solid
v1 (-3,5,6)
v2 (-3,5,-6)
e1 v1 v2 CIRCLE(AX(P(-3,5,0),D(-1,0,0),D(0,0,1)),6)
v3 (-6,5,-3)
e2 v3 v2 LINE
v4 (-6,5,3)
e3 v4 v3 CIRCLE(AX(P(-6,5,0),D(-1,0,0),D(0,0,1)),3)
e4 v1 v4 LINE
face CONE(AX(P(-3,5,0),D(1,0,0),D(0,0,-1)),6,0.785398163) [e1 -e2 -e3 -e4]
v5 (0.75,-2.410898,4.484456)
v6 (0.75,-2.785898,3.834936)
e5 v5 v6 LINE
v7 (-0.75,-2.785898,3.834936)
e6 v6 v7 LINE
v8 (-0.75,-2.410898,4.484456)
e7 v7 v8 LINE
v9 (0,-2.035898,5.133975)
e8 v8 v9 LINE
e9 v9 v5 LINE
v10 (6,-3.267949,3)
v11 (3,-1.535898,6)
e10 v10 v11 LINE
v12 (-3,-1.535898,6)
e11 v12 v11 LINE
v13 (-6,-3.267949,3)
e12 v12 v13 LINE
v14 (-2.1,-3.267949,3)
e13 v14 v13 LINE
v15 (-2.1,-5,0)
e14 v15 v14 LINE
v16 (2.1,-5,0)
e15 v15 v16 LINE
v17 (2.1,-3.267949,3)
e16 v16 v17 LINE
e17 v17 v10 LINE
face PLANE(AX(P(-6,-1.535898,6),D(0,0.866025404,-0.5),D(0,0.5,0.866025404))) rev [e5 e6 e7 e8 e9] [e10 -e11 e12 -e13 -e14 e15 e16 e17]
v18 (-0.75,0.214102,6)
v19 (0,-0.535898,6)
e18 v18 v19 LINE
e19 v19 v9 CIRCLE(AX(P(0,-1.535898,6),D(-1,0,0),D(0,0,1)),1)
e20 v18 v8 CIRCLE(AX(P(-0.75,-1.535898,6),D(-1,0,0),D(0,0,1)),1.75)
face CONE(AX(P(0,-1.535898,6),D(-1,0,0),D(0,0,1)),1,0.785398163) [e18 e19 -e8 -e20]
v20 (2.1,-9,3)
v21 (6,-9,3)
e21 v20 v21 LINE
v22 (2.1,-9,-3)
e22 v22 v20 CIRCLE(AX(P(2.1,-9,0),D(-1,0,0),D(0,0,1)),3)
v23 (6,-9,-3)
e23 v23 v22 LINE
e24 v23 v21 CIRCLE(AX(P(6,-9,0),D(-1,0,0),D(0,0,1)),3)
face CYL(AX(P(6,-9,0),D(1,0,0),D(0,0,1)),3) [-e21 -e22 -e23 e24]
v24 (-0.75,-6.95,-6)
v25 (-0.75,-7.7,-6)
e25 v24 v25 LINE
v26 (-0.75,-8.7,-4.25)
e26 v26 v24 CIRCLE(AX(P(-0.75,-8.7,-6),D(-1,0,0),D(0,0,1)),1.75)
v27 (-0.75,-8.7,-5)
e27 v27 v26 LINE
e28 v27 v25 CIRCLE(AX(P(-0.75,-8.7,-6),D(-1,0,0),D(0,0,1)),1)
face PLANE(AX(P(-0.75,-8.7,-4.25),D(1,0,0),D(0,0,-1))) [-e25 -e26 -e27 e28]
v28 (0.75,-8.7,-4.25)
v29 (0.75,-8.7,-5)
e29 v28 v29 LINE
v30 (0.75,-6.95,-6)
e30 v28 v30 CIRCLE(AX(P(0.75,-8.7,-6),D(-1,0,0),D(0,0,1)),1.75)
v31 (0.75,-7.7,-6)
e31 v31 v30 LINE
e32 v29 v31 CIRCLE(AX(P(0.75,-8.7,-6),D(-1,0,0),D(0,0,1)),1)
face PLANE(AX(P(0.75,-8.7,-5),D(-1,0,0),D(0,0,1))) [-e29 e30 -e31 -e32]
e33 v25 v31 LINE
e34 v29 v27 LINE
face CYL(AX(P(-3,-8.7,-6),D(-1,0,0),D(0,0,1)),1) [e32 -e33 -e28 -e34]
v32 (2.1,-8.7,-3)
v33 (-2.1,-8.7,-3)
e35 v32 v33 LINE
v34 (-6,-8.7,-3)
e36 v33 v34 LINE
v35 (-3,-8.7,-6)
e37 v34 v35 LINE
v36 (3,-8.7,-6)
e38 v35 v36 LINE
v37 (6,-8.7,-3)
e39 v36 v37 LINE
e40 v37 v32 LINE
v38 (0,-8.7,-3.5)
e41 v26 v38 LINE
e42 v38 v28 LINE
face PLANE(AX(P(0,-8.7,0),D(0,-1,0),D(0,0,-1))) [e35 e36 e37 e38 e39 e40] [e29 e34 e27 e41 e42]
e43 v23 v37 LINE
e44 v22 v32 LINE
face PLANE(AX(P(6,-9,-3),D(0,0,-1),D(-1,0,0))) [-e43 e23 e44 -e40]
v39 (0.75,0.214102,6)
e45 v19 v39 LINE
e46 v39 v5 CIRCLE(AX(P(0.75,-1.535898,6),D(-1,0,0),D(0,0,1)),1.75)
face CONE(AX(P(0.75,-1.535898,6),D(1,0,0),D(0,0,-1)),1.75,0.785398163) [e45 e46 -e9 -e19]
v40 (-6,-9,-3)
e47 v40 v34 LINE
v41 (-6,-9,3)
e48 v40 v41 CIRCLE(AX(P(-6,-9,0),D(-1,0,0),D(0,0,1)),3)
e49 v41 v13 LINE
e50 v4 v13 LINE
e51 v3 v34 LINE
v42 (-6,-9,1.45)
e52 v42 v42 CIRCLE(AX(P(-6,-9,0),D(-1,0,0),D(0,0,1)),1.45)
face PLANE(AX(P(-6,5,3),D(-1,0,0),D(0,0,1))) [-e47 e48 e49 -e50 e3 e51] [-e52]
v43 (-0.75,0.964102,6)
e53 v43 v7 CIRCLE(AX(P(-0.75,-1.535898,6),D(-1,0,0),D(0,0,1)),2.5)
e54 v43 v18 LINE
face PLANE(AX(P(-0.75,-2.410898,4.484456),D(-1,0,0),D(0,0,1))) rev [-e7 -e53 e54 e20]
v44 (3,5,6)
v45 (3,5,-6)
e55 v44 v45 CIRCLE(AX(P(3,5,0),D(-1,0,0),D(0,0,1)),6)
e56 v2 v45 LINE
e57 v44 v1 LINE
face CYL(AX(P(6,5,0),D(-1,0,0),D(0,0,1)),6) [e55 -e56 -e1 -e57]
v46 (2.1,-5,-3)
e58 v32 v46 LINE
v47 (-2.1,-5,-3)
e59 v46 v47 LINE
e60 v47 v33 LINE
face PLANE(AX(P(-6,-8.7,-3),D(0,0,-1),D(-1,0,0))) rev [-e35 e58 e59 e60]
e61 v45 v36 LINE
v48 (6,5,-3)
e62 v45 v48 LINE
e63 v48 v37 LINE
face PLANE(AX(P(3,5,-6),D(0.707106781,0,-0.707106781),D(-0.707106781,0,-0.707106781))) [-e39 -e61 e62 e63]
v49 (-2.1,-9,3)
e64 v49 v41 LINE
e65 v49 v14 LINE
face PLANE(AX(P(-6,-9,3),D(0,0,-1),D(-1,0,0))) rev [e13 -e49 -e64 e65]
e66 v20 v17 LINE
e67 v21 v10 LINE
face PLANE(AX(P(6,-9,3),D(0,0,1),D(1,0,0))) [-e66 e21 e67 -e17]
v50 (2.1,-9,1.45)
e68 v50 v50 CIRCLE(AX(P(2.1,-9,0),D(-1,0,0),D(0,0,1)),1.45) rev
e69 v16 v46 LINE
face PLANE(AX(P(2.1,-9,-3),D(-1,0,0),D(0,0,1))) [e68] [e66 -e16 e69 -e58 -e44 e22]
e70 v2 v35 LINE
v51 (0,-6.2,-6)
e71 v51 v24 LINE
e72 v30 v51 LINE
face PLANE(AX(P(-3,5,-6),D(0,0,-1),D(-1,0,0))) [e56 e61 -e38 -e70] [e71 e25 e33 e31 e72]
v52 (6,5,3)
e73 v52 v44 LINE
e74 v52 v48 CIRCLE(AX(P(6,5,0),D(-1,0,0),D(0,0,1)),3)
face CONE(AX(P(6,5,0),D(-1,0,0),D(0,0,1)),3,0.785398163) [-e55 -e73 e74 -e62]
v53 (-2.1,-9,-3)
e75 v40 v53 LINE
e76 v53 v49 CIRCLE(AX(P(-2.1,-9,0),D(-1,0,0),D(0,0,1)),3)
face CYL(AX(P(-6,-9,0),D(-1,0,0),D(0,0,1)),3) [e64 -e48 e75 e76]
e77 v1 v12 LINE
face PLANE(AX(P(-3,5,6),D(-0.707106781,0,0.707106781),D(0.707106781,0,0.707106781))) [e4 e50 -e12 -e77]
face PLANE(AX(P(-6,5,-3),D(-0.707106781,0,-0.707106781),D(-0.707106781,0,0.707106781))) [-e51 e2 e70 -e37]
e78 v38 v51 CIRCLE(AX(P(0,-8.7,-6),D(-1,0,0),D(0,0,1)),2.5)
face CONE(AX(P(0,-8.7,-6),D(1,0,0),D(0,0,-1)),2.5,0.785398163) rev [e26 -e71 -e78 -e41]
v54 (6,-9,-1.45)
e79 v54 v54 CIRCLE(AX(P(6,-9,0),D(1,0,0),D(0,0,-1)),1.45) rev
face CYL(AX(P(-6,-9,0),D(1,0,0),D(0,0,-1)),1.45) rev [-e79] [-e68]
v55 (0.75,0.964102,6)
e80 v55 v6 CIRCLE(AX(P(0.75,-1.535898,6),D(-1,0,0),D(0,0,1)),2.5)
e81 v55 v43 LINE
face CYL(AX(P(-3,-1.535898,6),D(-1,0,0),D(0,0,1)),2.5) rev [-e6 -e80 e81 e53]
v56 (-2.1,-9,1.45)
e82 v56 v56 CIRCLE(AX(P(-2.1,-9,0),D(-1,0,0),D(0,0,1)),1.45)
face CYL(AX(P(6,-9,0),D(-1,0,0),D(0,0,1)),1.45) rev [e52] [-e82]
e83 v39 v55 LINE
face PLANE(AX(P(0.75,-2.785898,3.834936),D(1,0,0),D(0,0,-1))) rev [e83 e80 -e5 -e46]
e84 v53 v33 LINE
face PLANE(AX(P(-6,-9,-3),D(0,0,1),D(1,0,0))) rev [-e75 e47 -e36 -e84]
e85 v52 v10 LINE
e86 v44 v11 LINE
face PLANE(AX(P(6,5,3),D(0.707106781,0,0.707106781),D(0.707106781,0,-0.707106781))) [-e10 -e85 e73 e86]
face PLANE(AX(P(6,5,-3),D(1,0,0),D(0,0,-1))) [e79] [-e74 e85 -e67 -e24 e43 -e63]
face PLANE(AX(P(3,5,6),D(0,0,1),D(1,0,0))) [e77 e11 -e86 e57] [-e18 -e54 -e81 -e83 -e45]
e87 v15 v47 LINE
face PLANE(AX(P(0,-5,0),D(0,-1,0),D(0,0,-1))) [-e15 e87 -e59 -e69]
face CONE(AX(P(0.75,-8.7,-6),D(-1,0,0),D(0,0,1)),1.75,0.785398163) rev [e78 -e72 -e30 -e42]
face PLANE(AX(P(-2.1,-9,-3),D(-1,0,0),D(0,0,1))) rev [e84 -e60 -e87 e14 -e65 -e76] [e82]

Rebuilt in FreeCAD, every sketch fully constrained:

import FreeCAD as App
import Part
import Sketcher

V = App.Vector
Q = App.Units.Quantity


def add_polygon(sketch, points):
    """Adds a closed chain of lines whose ends are joined by coincident constraints."""
    first, n = sketch.GeometryCount, len(points)
    for a, b in zip(points, points[1:] + points[:1]):
        sketch.addGeometry(Part.LineSegment(App.Vector(*a, 0), App.Vector(*b, 0)), False)
    for i in range(n):
        sketch.addConstraint(Sketcher.Constraint("Coincident", first + i, 2, first + (i + 1) % n, 1))

doc = App.newDocument("Part")
body = doc.addObject("PartDesign::Body", "Body")

# Sketch on XZ plane
sketch1 = body.newObject("Sketcher::SketchObject", "Sketch")
sketch1.AttachmentSupport = (doc.getObject("XZ_Plane"), [""])
sketch1.MapMode = "FlatFace"
add_polygon(sketch1, [(3, -6), (-3, -6), (-6, -3), (-6, 3), (-3, 6), (3, 6), (6, 3), (6, -3)])  # lines 0-7
sketch1.addConstraint([
    Sketcher.Constraint("Horizontal", 0),
    Sketcher.Constraint("Vertical", 2),
    Sketcher.Constraint("Horizontal", 4),
    Sketcher.Constraint("Vertical", 6),
    Sketcher.Constraint("Symmetric", 0, 2, 4, 2, -1, 1),
    Sketcher.Constraint("Symmetric", 1, 2, 5, 2, -1, 1),
    Sketcher.Constraint("Perpendicular", 1, 3),
    Sketcher.Constraint("Perpendicular", 5, 7),
    Sketcher.Constraint("Horizontal", 2, 2, 5, 2),
    Sketcher.Constraint("Horizontal", 1, 2, 6, 2),
    Sketcher.Constraint("Vertical", 0, 2, 3, 2),
    Sketcher.Constraint("Equal", 4, 2),
    Sketcher.Constraint("DistanceX", 0, 2, 0, 1, Q("6 mm")),
    Sketcher.Constraint("DistanceY", 0, 2, -1, 1, Q("6 mm")),
])
pad1 = body.newObject("PartDesign::Pad", "Pad")
pad1.Profile = sketch1
pad1.Length = 10
pad1.Midplane = True

# Sketch on YZ plane
sketch2 = body.newObject("Sketcher::SketchObject", "Sketch001")
sketch2.AttachmentSupport = (doc.getObject("YZ_Plane"), [""])
sketch2.MapMode = "FlatFace"
add_polygon(sketch2, [(-5, 6), (-5, 0), (-1.5, 6)])  # lines 0-2
sketch2.addConstraint([
    Sketcher.Constraint("Vertical", 0),
    Sketcher.Constraint("Horizontal", 2),
    Sketcher.Constraint("PointOnObject", 0, 2, -1),
    Sketcher.Constraint("DistanceY", 0, 2, 0, 1, Q("6 mm")),
    Sketcher.Constraint("Angle", 1, Q("60 deg")),
    Sketcher.Constraint("DistanceX", 0, 2, -1, 1, Q("5 mm")),
])
pocket1 = body.newObject("PartDesign::Pocket", "Pocket")
pocket1.Profile = sketch2
pocket1.Type = "ThroughAll"
pocket1.Midplane = True

# Sketch on XZ plane
sketch3 = body.newObject("Sketcher::SketchObject", "Sketch002")
sketch3.AttachmentSupport = (doc.getObject("XZ_Plane"), [""])
sketch3.MapMode = "FlatFace"
sketch3.AttachmentOffset = App.Placement(V(0, 0, -5), App.Rotation())
add_polygon(sketch3, [(-6, -3), (-6, 0), (6, 0), (6, -3), (3, -6), (-3, -6)])  # lines 0-5
sketch3.addConstraint([
    Sketcher.Constraint("Vertical", 0),
    Sketcher.Constraint("Horizontal", 1),
    Sketcher.Constraint("Vertical", 2),
    Sketcher.Constraint("Horizontal", 4),
    Sketcher.Constraint("Symmetric", 0, 2, 1, 2, -1, 1),
    Sketcher.Constraint("Perpendicular", 3, 5),
    Sketcher.Constraint("Horizontal", 2, 2, 5, 2),
    Sketcher.Constraint("Equal", 3, 5),
    Sketcher.Constraint("DistanceX", 1, 1, 1, 2, Q("12 mm")),
    Sketcher.Constraint("DistanceX", 4, 2, 4, 1, Q("6 mm")),
    Sketcher.Constraint("DistanceY", 0, 1, 0, 2, Q("3 mm")),
])
revolution = body.newObject("PartDesign::Revolution", "Revolution")
revolution.Profile = sketch3
revolution.ReferenceAxis = (sketch3, ["H_Axis"])
revolution.Angle = 180

# Sketch on XZ plane
sketch4 = body.newObject("Sketcher::SketchObject", "Sketch003")
sketch4.AttachmentSupport = (doc.getObject("XZ_Plane"), [""])
sketch4.MapMode = "FlatFace"
sketch4.AttachmentOffset = App.Placement(V(0, 0, 5), App.Rotation())
add_polygon(sketch4, [(-6, 3), (-6, -3), (-2.1, -3), (-2.1, 3)])  # lines 0-3
sketch4.addConstraint([
    Sketcher.Constraint("Vertical", 0),
    Sketcher.Constraint("Horizontal", 1),
    Sketcher.Constraint("Vertical", 2),
    Sketcher.Constraint("Horizontal", 3),
    Sketcher.Constraint("DistanceY", 0, 2, 0, 1, Q("6 mm")),
    Sketcher.Constraint("DistanceX", 1, 1, 1, 2, Q("3.9 mm")),
    Sketcher.Constraint("DistanceX", 0, 2, -1, 1, Q("6 mm")),
    Sketcher.Constraint("DistanceY", 0, 2, -1, 1, Q("3 mm")),
])
pad2 = body.newObject("PartDesign::Pad", "Pad001")
pad2.Profile = sketch4
pad2.Length = 8
pad2.Midplane = True

# Sketch on XZ plane
sketch5 = body.newObject("Sketcher::SketchObject", "Sketch004")
sketch5.AttachmentSupport = (doc.getObject("XZ_Plane"), [""])
sketch5.MapMode = "FlatFace"
sketch5.AttachmentOffset = App.Placement(V(0, 0, 9), App.Rotation())
add_polygon(sketch5, [(-6, 3), (-6, 0), (-2.1, 0), (-2.1, 3)])  # lines 0-3
sketch5.addConstraint([
    Sketcher.Constraint("Vertical", 0),
    Sketcher.Constraint("Horizontal", 1),
    Sketcher.Constraint("Vertical", 2),
    Sketcher.Constraint("Horizontal", 3),
    Sketcher.Constraint("PointOnObject", 0, 2, -1),
    Sketcher.Constraint("DistanceY", 0, 2, 0, 1, Q("3 mm")),
    Sketcher.Constraint("DistanceX", 1, 1, 1, 2, Q("3.9 mm")),
    Sketcher.Constraint("DistanceX", 0, 2, -1, 1, Q("6 mm")),
])
revolution2 = body.newObject("PartDesign::Revolution", "Revolution001")
revolution2.Profile = sketch5
revolution2.ReferenceAxis = (sketch5, ["H_Axis"])
revolution2.Angle = 180

# Sketch on YZ plane
sketch6 = body.newObject("Sketcher::SketchObject", "Sketch005")
sketch6.AttachmentSupport = (doc.getObject("YZ_Plane"), [""])
sketch6.MapMode = "FlatFace"
sketch6.AttachmentOffset = App.Placement(V(0, 0, -6), App.Rotation())
sketch6.addGeometry(Part.Circle(V(-9, 0, 0), V(0, 0, 1), 1.4), False)
sketch6.addConstraint([
    Sketcher.Constraint("PointOnObject", 0, 3, -1),
    Sketcher.Constraint("Diameter", 0, Q("2.9 mm")),
    Sketcher.Constraint("DistanceX", 0, 3, -1, 1, Q("9 mm")),
])
pocket2 = body.newObject("PartDesign::Pocket", "Pocket001")
pocket2.Profile = sketch6
pocket2.Length = 38
pocket2.Midplane = True
doc.recompute()

mirrored = body.newObject("PartDesign::Mirrored", "Mirrored")
mirrored.Originals = [pad2, revolution2, pocket2]
mirrored.MirrorPlane = (doc.getObject("YZ_Plane"), [""])
body.Tip = mirrored

# Sketch on an angled plane
sketch7 = body.newObject("Sketcher::SketchObject", "Sketch006")
sketch7.Placement = App.Placement(V(0, -3.75, 2.165064), App.Rotation(V(1, 0, 0), V(0, 0.5, 0.866025404), V(0, -0.866025404, 0.5), "ZXY"))
add_polygon(sketch7, [(0, 3.4), (-0.8, 2.7), (-0.8, 1.9), (0.8, 1.9), (0.8, 2.7)])  # lines 0-4
sketch7.addGeometry(Part.LineSegment(V(-0.8, 4.4, 0), V(0.8, 4.4, 0)), True)  # axis
sketch7.addConstraint([
    Sketcher.Constraint("Vertical", 1),
    Sketcher.Constraint("Horizontal", 2),
    Sketcher.Constraint("Vertical", 3),
    Sketcher.Constraint("Horizontal", 5),
    Sketcher.Constraint("Symmetric", 0, 2, 3, 2, -2),
    Sketcher.Constraint("PointOnObject", 4, 2, -2),
    Sketcher.Constraint("Perpendicular", 0, 4),
    Sketcher.Constraint("Vertical", 1, 2, 5, 1),
    Sketcher.Constraint("Vertical", 3, 2, 5, 2),
    Sketcher.Constraint("DistanceX", 2, 1, 2, 2, Q("1.5 mm")),
    Sketcher.Constraint("DistanceY", 4, 2, 5, 1, Q("1 mm")),
    Sketcher.Constraint("DistanceY", 1, 2, 1, 1, Q("0.75 mm")),
    Sketcher.Constraint("DistanceY", -1, 1, 0, 2, Q("2.678203 mm")),
])
groove = body.newObject("PartDesign::Groove", "Groove")
groove.Profile = sketch7
groove.ReferenceAxis = (sketch7, ["Axis0"])
groove.Angle = 360

# Sketch on XZ plane
sketch8 = body.newObject("Sketcher::SketchObject", "Sketch007")
sketch8.AttachmentSupport = (doc.getObject("XZ_Plane"), [""])
sketch8.MapMode = "FlatFace"
sketch8.AttachmentOffset = App.Placement(V(0, 0, 5), App.Rotation())
add_polygon(sketch8, [(6, -3), (-6, -3), (-3, -6), (3, -6)])  # lines 0-3
sketch8.addConstraint([
    Sketcher.Constraint("Horizontal", 0),
    Sketcher.Constraint("Horizontal", 2),
    Sketcher.Constraint("Perpendicular", 1, 3),
    Sketcher.Constraint("Equal", 1, 3),
    Sketcher.Constraint("DistanceX", 0, 2, 0, 1, Q("12 mm")),
    Sketcher.Constraint("DistanceX", 2, 1, 2, 2, Q("6 mm")),
    Sketcher.Constraint("DistanceX", 0, 2, -1, 1, Q("6 mm")),
    Sketcher.Constraint("DistanceY", 0, 2, -1, 1, Q("3 mm")),
])
pad3 = body.newObject("PartDesign::Pad", "Pad002")
pad3.Profile = sketch8
pad3.Length = 3.7

# Sketch on XZ plane
sketch9 = body.newObject("Sketcher::SketchObject", "Sketch008")
sketch9.AttachmentSupport = (doc.getObject("XZ_Plane"), [""])
sketch9.MapMode = "FlatFace"
sketch9.AttachmentOffset = App.Placement(V(0, 0, 8.7), App.Rotation())
add_polygon(sketch9, [(0, -3.5), (-0.8, -4.2), (-0.8, -5), (0.8, -5), (0.8, -4.2)])  # lines 0-4
sketch9.addGeometry(Part.LineSegment(V(-0.8, -6, 0), V(0.8, -6, 0)), True)  # axis
sketch9.addConstraint([
    Sketcher.Constraint("Vertical", 1),
    Sketcher.Constraint("Horizontal", 2),
    Sketcher.Constraint("Vertical", 3),
    Sketcher.Constraint("Horizontal", 5),
    Sketcher.Constraint("Symmetric", 0, 2, 3, 2, -2),
    Sketcher.Constraint("PointOnObject", 4, 2, -2),
    Sketcher.Constraint("Perpendicular", 0, 4),
    Sketcher.Constraint("Vertical", 1, 2, 5, 1),
    Sketcher.Constraint("Vertical", 3, 2, 5, 2),
    Sketcher.Constraint("DistanceX", 2, 1, 2, 2, Q("1.5 mm")),
    Sketcher.Constraint("DistanceY", 1, 2, -1, 1, Q("5 mm")),
    Sketcher.Constraint("DistanceY", 5, 1, -1, 1, Q("6 mm")),
    Sketcher.Constraint("DistanceY", 1, 2, 1, 1, Q("0.75 mm")),
])
groove2 = body.newObject("PartDesign::Groove", "Groove001")
groove2.Profile = sketch9
groove2.ReferenceAxis = (sketch9, ["Axis0"])
groove2.Angle = 360

doc.recompute()
